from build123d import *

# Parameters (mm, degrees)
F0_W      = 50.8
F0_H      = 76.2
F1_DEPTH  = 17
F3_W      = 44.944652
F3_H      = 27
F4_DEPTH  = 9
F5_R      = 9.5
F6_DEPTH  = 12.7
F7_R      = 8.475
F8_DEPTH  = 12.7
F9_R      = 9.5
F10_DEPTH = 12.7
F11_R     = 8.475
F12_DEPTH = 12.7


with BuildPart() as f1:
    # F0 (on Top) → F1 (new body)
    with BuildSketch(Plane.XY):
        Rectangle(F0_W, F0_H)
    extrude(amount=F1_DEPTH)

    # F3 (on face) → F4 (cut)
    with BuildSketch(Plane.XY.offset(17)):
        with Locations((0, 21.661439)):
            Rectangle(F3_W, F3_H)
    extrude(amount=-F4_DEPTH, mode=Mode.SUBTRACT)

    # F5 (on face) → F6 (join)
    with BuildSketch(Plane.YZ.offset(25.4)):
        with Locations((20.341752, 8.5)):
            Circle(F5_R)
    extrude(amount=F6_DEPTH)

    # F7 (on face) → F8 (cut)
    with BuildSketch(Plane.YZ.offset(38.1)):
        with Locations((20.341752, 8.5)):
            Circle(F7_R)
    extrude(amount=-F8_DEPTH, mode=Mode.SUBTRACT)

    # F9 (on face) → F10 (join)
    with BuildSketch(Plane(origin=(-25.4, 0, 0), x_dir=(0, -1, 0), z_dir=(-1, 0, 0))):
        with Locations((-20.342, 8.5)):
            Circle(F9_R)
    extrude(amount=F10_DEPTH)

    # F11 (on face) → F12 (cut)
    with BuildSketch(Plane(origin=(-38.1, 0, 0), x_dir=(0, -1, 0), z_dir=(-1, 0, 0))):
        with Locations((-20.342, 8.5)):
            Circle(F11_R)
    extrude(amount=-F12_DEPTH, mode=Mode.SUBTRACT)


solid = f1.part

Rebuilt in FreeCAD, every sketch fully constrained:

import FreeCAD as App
import Part
import Sketcher

V = App.Vector
Q = App.Units.Quantity

doc = App.newDocument("Part")
body = doc.addObject("PartDesign::Body", "Body")

sketch1 = body.newObject("Sketcher::SketchObject", "Sketch")
sketch1.AttachmentSupport = (doc.getObject("XY_Plane"), [""])
sketch1.MapMode = "FlatFace"
sketch1.addGeometry([
    Part.LineSegment(V(-25, 38, 0), V(-25, -38, 0)),
    Part.LineSegment(V(-25, -38, 0), V(25, -38, 0)),
    Part.LineSegment(V(25, -38, 0), V(25, 38, 0)),
    Part.LineSegment(V(25, 38, 0), V(-25, 38, 0)),
], False)
sketch1.addConstraint([
    Sketcher.Constraint("Coincident", 0, 2, 1, 1),
    Sketcher.Constraint("Coincident", 1, 2, 2, 1),
    Sketcher.Constraint("Coincident", 2, 2, 3, 1),
    Sketcher.Constraint("Coincident", 3, 2, 0, 1),
    Sketcher.Constraint("Vertical", 0),
    Sketcher.Constraint("Horizontal", 1),
    Sketcher.Constraint("Vertical", 2),
    Sketcher.Constraint("Horizontal", 3),
    Sketcher.Constraint("Symmetric", 0, 2, 2, 2, -1, 1),
    Sketcher.Constraint("DistanceX", 1, 1, 1, 2, Q("50.8 mm")),
    Sketcher.Constraint("DistanceY", 0, 2, 0, 1, Q("76.2 mm")),
])
pad1 = body.newObject("PartDesign::Pad", "Pad")
pad1.Profile = sketch1
pad1.Length = 17

sketch2 = body.newObject("Sketcher::SketchObject", "Sketch001")
sketch2.AttachmentSupport = (doc.getObject("XY_Plane"), [""])
sketch2.MapMode = "FlatFace"
sketch2.AttachmentOffset = App.Placement(V(0, 0, 17), App.Rotation())
sketch2.addGeometry([
    Part.LineSegment(V(-22, 35, 0), V(-22, 8, 0)),
    Part.LineSegment(V(-22, 8, 0), V(22, 8, 0)),
    Part.LineSegment(V(22, 8, 0), V(22, 35, 0)),
    Part.LineSegment(V(22, 35, 0), V(-22, 35, 0)),
], False)
sketch2.addConstraint([
    Sketcher.Constraint("Coincident", 0, 2, 1, 1),
    Sketcher.Constraint("Coincident", 1, 2, 2, 1),
    Sketcher.Constraint("Coincident", 2, 2, 3, 1),
    Sketcher.Constraint("Coincident", 3, 2, 0, 1),
    Sketcher.Constraint("Vertical", 0),
    Sketcher.Constraint("Horizontal", 1),
    Sketcher.Constraint("Vertical", 2),
    Sketcher.Constraint("Horizontal", 3),
    Sketcher.Constraint("DistanceY", 0, 2, 0, 1, Q("27 mm")),
    Sketcher.Constraint("DistanceX", 1, 1, 1, 2, Q("44.944652 mm")),
    Sketcher.Constraint("DistanceY", -1, 1, 0, 2, Q("8.161439 mm")),
    Sketcher.Constraint("DistanceX", 0, 2, -1, 1, Q("22.472326 mm")),
])
pocket1 = body.newObject("PartDesign::Pocket", "Pocket")
pocket1.Profile = sketch2
pocket1.Length = 9

sketch3 = body.newObject("Sketcher::SketchObject", "Sketch002")
sketch3.AttachmentSupport = (doc.getObject("YZ_Plane"), [""])
sketch3.MapMode = "FlatFace"
sketch3.AttachmentOffset = App.Placement(V(0, 0, 25.4), App.Rotation())
sketch3.addGeometry(Part.Circle(V(20, 8, 0), V(0, 0, 1), 10), False)
sketch3.addConstraint([
    Sketcher.Constraint("Diameter", 0, Q("19 mm")),
    Sketcher.Constraint("DistanceY", -1, 1, 0, 3, Q("8.5 mm")),
    Sketcher.Constraint("DistanceX", -1, 1, 0, 3, Q("20.341752 mm")),
])
pad2 = body.newObject("PartDesign::Pad", "Pad001")
pad2.Profile = sketch3
pad2.Length = 12.7

sketch4 = body.newObject("Sketcher::SketchObject", "Sketch003")
sketch4.AttachmentSupport = (doc.getObject("YZ_Plane"), [""])
sketch4.MapMode = "FlatFace"
sketch4.AttachmentOffset = App.Placement(V(0, 0, 38.1), App.Rotation())
sketch4.addGeometry(Part.Circle(V(20, 8, 0), V(0, 0, 1), 8), False)
sketch4.addConstraint([
    Sketcher.Constraint("Diameter", 0, Q("16.95 mm")),
    Sketcher.Constraint("DistanceY", -1, 1, 0, 3, Q("8.5 mm")),
    Sketcher.Constraint("DistanceX", -1, 1, 0, 3, Q("20.341752 mm")),
])
pocket2 = body.newObject("PartDesign::Pocket", "Pocket001")
pocket2.Profile = sketch4
pocket2.Length = 12.7

sketch5 = body.newObject("Sketcher::SketchObject", "Sketch004")
sketch5.AttachmentSupport = (doc.getObject("YZ_Plane"), [""])
sketch5.MapMode = "FlatFace"
sketch5.AttachmentOffset = App.Placement(V(0, 0, -25.4), App.Rotation())
sketch5.addGeometry(Part.Circle(V(20, 8, 0), V(0, 0, 1), 10), False)
sketch5.addConstraint([
    Sketcher.Constraint("Diameter", 0, Q("19 mm")),
    Sketcher.Constraint("DistanceY", -1, 1, 0, 3, Q("8.5 mm")),
    Sketcher.Constraint("DistanceX", -1, 1, 0, 3, Q("20.342 mm")),
])
pad3 = body.newObject("PartDesign::Pad", "Pad002")
pad3.Profile = sketch5
pad3.Length = 12.7
pad3.Reversed = True

sketch6 = body.newObject("Sketcher::SketchObject", "Sketch005")
sketch6.AttachmentSupport = (doc.getObject("YZ_Plane"), [""])
sketch6.MapMode = "FlatFace"
sketch6.AttachmentOffset = App.Placement(V(0, 0, -38.1), App.Rotation())
sketch6.addGeometry(Part.Circle(V(20, 8, 0), V(0, 0, 1), 8), False)
sketch6.addConstraint([
    Sketcher.Constraint("Diameter", 0, Q("16.95 mm")),
    Sketcher.Constraint("DistanceY", -1, 1, 0, 3, Q("8.5 mm")),
    Sketcher.Constraint("DistanceX", -1, 1, 0, 3, Q("20.342 mm")),
])
pocket3 = body.newObject("PartDesign::Pocket", "Pocket002")
pocket3.Profile = sketch6
pocket3.Length = 12.7
pocket3.Reversed = True

doc.recompute()
